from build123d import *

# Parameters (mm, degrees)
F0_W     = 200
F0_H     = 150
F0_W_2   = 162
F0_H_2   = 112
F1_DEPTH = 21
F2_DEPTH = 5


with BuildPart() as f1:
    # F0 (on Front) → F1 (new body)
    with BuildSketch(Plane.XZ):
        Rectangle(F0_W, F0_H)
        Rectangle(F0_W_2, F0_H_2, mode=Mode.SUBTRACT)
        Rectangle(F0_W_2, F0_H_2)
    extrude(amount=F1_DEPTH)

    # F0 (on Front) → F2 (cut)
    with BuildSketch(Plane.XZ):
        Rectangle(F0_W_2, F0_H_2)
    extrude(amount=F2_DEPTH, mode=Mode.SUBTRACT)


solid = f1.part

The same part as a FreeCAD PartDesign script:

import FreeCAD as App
import Part
import Sketcher

V = App.Vector

doc = App.newDocument("Part")
params = doc.addObject("Spreadsheet::Sheet", "Params")
for row, (alias, value) in enumerate([
    ("sketch1_width", "200 mm"),
    ("sketch1_height", "150 mm"),
    ("pad1_length", "21 mm"),
    ("sketch2_width", "162 mm"),
    ("sketch2_height", "112 mm"),
    ("pocket1_length", "5 mm"),
], start=1):
    params.set(f"A{row}", alias)
    params.set(f"B{row}", "=" + value)
    params.setAlias(f"B{row}", alias)

body = doc.addObject("PartDesign::Body", "Body")

sketch1 = body.newObject("Sketcher::SketchObject", "Sketch")
sketch1.AttachmentSupport = (doc.getObject("XZ_Plane"), [""])
sketch1.MapMode = "FlatFace"
sketch1.addGeometry([
    Part.LineSegment(V(-100, 75, 0), V(-100, -75, 0)),
    Part.LineSegment(V(-100, -75, 0), V(100, -75, 0)),
    Part.LineSegment(V(100, -75, 0), V(100, 75, 0)),
    Part.LineSegment(V(100, 75, 0), V(-100, 75, 0)),
], False)
sketch1.addConstraint([
    Sketcher.Constraint("Coincident", 0, 2, 1, 1),
    Sketcher.Constraint("Coincident", 1, 2, 2, 1),
    Sketcher.Constraint("Coincident", 2, 2, 3, 1),
    Sketcher.Constraint("Coincident", 3, 2, 0, 1),
    Sketcher.Constraint("Vertical", 0),
    Sketcher.Constraint("Horizontal", 1),
    Sketcher.Constraint("Vertical", 2),
    Sketcher.Constraint("Horizontal", 3),
    Sketcher.Constraint("Symmetric", 0, 2, 2, 2, -1, 1),
    Sketcher.Constraint("DistanceX", 1, 1, 1, 2, 200.0),
    Sketcher.Constraint("DistanceY", 0, 2, 0, 1, 150.0),
])
sketch1.setExpression("Constraints[9]", "Params.sketch1_width")
sketch1.setExpression("Constraints[10]", "Params.sketch1_height")
pad1 = body.newObject("PartDesign::Pad", "Pad")
pad1.Profile = sketch1
pad1.setExpression("Length", "Params.pad1_length")

sketch2 = body.newObject("Sketcher::SketchObject", "Sketch001")
sketch2.AttachmentSupport = (doc.getObject("XZ_Plane"), [""])
sketch2.MapMode = "FlatFace"
sketch2.addGeometry([
    Part.LineSegment(V(-81, 56, 0), V(-81, -56, 0)),
    Part.LineSegment(V(-81, -56, 0), V(81, -56, 0)),
    Part.LineSegment(V(81, -56, 0), V(81, 56, 0)),
    Part.LineSegment(V(81, 56, 0), V(-81, 56, 0)),
], False)
sketch2.addConstraint([
    Sketcher.Constraint("Coincident", 0, 2, 1, 1),
    Sketcher.Constraint("Coincident", 1, 2, 2, 1),
    Sketcher.Constraint("Coincident", 2, 2, 3, 1),
    Sketcher.Constraint("Coincident", 3, 2, 0, 1),
    Sketcher.Constraint("Vertical", 0),
    Sketcher.Constraint("Horizontal", 1),
    Sketcher.Constraint("Vertical", 2),
    Sketcher.Constraint("Horizontal", 3),
    Sketcher.Constraint("Symmetric", 0, 2, 2, 2, -1, 1),
    Sketcher.Constraint("DistanceX", 1, 1, 1, 2, 162.0),
    Sketcher.Constraint("DistanceY", 0, 2, 0, 1, 112.0),
])
sketch2.setExpression("Constraints[9]", "Params.sketch2_width")
sketch2.setExpression("Constraints[10]", "Params.sketch2_height")
pocket1 = body.newObject("PartDesign::Pocket", "Pocket")
pocket1.Profile = sketch2
pocket1.setExpression("Length", "Params.pocket1_length")
pocket1.Reversed = True

doc.recompute()
